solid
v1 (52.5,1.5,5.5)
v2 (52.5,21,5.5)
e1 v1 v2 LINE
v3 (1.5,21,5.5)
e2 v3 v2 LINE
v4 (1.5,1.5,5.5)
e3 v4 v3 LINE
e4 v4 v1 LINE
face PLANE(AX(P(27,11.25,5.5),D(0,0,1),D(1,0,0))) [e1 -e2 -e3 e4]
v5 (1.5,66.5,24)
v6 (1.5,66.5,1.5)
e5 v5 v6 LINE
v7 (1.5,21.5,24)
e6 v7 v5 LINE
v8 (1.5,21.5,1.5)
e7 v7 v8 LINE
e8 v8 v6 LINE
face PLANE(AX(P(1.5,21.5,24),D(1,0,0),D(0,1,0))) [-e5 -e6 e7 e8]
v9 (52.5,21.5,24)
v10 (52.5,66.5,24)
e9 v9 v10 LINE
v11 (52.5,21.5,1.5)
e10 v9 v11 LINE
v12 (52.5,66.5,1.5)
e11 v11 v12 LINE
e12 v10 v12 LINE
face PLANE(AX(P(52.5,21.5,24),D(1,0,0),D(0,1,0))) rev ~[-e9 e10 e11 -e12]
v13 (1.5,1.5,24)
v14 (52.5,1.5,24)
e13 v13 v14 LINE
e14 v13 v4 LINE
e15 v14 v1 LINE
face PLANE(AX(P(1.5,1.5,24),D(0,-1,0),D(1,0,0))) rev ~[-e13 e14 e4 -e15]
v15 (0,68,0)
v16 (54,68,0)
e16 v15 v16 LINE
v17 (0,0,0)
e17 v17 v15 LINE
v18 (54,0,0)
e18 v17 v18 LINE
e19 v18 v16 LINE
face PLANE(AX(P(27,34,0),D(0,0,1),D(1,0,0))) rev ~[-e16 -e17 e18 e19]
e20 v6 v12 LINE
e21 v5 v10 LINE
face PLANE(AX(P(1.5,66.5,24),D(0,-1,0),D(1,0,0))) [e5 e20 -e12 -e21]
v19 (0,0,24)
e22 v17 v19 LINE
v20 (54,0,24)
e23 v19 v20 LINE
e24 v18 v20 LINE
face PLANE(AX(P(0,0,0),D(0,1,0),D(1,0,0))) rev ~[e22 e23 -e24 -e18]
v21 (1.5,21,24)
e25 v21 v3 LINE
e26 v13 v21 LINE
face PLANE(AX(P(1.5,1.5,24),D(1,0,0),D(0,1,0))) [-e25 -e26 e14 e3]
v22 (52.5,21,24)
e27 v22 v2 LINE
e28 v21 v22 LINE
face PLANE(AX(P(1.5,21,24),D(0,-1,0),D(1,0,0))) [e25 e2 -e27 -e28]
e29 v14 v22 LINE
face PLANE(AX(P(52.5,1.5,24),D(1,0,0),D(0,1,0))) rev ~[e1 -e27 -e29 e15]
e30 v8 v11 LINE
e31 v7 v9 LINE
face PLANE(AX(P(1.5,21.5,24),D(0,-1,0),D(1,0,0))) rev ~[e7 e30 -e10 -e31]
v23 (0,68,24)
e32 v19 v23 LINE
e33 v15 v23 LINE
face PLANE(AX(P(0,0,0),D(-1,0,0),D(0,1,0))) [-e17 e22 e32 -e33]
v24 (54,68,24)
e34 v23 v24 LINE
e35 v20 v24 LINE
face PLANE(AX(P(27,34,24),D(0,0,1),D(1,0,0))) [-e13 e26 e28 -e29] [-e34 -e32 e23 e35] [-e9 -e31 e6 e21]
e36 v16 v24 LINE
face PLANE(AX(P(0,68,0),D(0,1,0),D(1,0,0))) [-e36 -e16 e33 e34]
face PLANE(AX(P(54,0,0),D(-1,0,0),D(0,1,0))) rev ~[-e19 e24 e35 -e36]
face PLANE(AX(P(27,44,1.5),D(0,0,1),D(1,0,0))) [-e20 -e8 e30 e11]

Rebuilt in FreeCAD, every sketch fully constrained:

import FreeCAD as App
import Part
import Sketcher

V = App.Vector
Q = App.Units.Quantity

doc = App.newDocument("Part")
body = doc.addObject("PartDesign::Body", "Body")

# Sketch on XY plane
sketch1 = doc.addObject("Sketcher::SketchObject", "Sketch")
body.addObject(sketch1)
sketch1.AttachmentSupport = (doc.XY_Plane, [""])
sketch1.MapMode = "FlatFace"
sketch1.addGeometry([
    Part.LineSegment(V(0, 68, 0), V(0, 0, 0)),
    Part.LineSegment(V(0, 0, 0), V(54, 0, 0)),
    Part.LineSegment(V(54, 0, 0), V(54, 68, 0)),
    Part.LineSegment(V(54, 68, 0), V(0, 68, 0)),
], False)
sketch1.addConstraint([
    Sketcher.Constraint("Coincident", 0, 2, 1, 1),
    Sketcher.Constraint("Coincident", 1, 2, 2, 1),
    Sketcher.Constraint("Coincident", 2, 2, 3, 1),
    Sketcher.Constraint("Coincident", 3, 2, 0, 1),
    Sketcher.Constraint("Vertical", 0),
    Sketcher.Constraint("Horizontal", 1),
    Sketcher.Constraint("Vertical", 2),
    Sketcher.Constraint("Horizontal", 3),
    Sketcher.Constraint("Coincident", 0, 2, -1, 1),
    Sketcher.Constraint("DistanceX", 1, 1, 1, 2, Q("54 mm")),
    Sketcher.Constraint("DistanceY", 0, 2, 0, 1, Q("68 mm")),
])
pad1 = doc.addObject("PartDesign::Pad", "Pad")
body.addObject(pad1)
pad1.Profile = sketch1
pad1.Length = 24

# Sketch on XY plane
sketch2 = doc.addObject("Sketcher::SketchObject", "Sketch001")
body.addObject(sketch2)
sketch2.AttachmentSupport = (doc.XY_Plane, [""])
sketch2.MapMode = "FlatFace"
sketch2.AttachmentOffset = App.Placement(V(0, 0, 24), App.Rotation())
sketch2.addGeometry([
    Part.LineSegment(V(2, 66, 0), V(2, 22, 0)),
    Part.LineSegment(V(2, 22, 0), V(52, 22, 0)),
    Part.LineSegment(V(52, 22, 0), V(52, 66, 0)),
    Part.LineSegment(V(52, 66, 0), V(2, 66, 0)),
], False)
sketch2.addConstraint([
    Sketcher.Constraint("Coincident", 0, 2, 1, 1),
    Sketcher.Constraint("Coincident", 1, 2, 2, 1),
    Sketcher.Constraint("Coincident", 2, 2, 3, 1),
    Sketcher.Constraint("Coincident", 3, 2, 0, 1),
    Sketcher.Constraint("Vertical", 0),
    Sketcher.Constraint("Horizontal", 1),
    Sketcher.Constraint("Vertical", 2),
    Sketcher.Constraint("Horizontal", 3),
    Sketcher.Constraint("DistanceX", 1, 1, 1, 2, Q("51 mm")),
    Sketcher.Constraint("DistanceY", 0, 2, 0, 1, Q("45 mm")),
    Sketcher.Constraint("DistanceX", -1, 1, 0, 2, Q("1.5 mm")),
    Sketcher.Constraint("DistanceY", -1, 1, 0, 2, Q("21.5 mm")),
])
pocket1 = doc.addObject("PartDesign::Pocket", "Pocket")
body.addObject(pocket1)
pocket1.Profile = sketch2
pocket1.Length = 22.5

# Sketch on XY plane
sketch3 = doc.addObject("Sketcher::SketchObject", "Sketch002")
body.addObject(sketch3)
sketch3.AttachmentSupport = (doc.XY_Plane, [""])
sketch3.MapMode = "FlatFace"
sketch3.AttachmentOffset = App.Placement(V(0, 0, 24), App.Rotation())
sketch3.addGeometry([
    Part.LineSegment(V(2, 21, 0), V(2, 2, 0)),
    Part.LineSegment(V(2, 2, 0), V(52, 2, 0)),
    Part.LineSegment(V(52, 2, 0), V(52, 21, 0)),
    Part.LineSegment(V(52, 21, 0), V(2, 21, 0)),
], False)
sketch3.addConstraint([
    Sketcher.Constraint("Coincident", 0, 2, 1, 1),
    Sketcher.Constraint("Coincident", 1, 2, 2, 1),
    Sketcher.Constraint("Coincident", 2, 2, 3, 1),
    Sketcher.Constraint("Coincident", 3, 2, 0, 1),
    Sketcher.Constraint("Vertical", 0),
    Sketcher.Constraint("Horizontal", 1),
    Sketcher.Constraint("Vertical", 2),
    Sketcher.Constraint("Horizontal", 3),
    Sketcher.Constraint("DistanceX", 1, 1, 1, 2, Q("51 mm")),
    Sketcher.Constraint("DistanceY", 0, 2, 0, 1, Q("19.5 mm")),
    Sketcher.Constraint("DistanceY", -1, 1, 2, 2, Q("21 mm")),
    Sketcher.Constraint("DistanceX", -1, 1, 0, 2, Q("1.5 mm")),
])
pocket2 = doc.addObject("PartDesign::Pocket", "Pocket001")
body.addObject(pocket2)
pocket2.Profile = sketch3
pocket2.Length = 18.5

doc.recompute()
